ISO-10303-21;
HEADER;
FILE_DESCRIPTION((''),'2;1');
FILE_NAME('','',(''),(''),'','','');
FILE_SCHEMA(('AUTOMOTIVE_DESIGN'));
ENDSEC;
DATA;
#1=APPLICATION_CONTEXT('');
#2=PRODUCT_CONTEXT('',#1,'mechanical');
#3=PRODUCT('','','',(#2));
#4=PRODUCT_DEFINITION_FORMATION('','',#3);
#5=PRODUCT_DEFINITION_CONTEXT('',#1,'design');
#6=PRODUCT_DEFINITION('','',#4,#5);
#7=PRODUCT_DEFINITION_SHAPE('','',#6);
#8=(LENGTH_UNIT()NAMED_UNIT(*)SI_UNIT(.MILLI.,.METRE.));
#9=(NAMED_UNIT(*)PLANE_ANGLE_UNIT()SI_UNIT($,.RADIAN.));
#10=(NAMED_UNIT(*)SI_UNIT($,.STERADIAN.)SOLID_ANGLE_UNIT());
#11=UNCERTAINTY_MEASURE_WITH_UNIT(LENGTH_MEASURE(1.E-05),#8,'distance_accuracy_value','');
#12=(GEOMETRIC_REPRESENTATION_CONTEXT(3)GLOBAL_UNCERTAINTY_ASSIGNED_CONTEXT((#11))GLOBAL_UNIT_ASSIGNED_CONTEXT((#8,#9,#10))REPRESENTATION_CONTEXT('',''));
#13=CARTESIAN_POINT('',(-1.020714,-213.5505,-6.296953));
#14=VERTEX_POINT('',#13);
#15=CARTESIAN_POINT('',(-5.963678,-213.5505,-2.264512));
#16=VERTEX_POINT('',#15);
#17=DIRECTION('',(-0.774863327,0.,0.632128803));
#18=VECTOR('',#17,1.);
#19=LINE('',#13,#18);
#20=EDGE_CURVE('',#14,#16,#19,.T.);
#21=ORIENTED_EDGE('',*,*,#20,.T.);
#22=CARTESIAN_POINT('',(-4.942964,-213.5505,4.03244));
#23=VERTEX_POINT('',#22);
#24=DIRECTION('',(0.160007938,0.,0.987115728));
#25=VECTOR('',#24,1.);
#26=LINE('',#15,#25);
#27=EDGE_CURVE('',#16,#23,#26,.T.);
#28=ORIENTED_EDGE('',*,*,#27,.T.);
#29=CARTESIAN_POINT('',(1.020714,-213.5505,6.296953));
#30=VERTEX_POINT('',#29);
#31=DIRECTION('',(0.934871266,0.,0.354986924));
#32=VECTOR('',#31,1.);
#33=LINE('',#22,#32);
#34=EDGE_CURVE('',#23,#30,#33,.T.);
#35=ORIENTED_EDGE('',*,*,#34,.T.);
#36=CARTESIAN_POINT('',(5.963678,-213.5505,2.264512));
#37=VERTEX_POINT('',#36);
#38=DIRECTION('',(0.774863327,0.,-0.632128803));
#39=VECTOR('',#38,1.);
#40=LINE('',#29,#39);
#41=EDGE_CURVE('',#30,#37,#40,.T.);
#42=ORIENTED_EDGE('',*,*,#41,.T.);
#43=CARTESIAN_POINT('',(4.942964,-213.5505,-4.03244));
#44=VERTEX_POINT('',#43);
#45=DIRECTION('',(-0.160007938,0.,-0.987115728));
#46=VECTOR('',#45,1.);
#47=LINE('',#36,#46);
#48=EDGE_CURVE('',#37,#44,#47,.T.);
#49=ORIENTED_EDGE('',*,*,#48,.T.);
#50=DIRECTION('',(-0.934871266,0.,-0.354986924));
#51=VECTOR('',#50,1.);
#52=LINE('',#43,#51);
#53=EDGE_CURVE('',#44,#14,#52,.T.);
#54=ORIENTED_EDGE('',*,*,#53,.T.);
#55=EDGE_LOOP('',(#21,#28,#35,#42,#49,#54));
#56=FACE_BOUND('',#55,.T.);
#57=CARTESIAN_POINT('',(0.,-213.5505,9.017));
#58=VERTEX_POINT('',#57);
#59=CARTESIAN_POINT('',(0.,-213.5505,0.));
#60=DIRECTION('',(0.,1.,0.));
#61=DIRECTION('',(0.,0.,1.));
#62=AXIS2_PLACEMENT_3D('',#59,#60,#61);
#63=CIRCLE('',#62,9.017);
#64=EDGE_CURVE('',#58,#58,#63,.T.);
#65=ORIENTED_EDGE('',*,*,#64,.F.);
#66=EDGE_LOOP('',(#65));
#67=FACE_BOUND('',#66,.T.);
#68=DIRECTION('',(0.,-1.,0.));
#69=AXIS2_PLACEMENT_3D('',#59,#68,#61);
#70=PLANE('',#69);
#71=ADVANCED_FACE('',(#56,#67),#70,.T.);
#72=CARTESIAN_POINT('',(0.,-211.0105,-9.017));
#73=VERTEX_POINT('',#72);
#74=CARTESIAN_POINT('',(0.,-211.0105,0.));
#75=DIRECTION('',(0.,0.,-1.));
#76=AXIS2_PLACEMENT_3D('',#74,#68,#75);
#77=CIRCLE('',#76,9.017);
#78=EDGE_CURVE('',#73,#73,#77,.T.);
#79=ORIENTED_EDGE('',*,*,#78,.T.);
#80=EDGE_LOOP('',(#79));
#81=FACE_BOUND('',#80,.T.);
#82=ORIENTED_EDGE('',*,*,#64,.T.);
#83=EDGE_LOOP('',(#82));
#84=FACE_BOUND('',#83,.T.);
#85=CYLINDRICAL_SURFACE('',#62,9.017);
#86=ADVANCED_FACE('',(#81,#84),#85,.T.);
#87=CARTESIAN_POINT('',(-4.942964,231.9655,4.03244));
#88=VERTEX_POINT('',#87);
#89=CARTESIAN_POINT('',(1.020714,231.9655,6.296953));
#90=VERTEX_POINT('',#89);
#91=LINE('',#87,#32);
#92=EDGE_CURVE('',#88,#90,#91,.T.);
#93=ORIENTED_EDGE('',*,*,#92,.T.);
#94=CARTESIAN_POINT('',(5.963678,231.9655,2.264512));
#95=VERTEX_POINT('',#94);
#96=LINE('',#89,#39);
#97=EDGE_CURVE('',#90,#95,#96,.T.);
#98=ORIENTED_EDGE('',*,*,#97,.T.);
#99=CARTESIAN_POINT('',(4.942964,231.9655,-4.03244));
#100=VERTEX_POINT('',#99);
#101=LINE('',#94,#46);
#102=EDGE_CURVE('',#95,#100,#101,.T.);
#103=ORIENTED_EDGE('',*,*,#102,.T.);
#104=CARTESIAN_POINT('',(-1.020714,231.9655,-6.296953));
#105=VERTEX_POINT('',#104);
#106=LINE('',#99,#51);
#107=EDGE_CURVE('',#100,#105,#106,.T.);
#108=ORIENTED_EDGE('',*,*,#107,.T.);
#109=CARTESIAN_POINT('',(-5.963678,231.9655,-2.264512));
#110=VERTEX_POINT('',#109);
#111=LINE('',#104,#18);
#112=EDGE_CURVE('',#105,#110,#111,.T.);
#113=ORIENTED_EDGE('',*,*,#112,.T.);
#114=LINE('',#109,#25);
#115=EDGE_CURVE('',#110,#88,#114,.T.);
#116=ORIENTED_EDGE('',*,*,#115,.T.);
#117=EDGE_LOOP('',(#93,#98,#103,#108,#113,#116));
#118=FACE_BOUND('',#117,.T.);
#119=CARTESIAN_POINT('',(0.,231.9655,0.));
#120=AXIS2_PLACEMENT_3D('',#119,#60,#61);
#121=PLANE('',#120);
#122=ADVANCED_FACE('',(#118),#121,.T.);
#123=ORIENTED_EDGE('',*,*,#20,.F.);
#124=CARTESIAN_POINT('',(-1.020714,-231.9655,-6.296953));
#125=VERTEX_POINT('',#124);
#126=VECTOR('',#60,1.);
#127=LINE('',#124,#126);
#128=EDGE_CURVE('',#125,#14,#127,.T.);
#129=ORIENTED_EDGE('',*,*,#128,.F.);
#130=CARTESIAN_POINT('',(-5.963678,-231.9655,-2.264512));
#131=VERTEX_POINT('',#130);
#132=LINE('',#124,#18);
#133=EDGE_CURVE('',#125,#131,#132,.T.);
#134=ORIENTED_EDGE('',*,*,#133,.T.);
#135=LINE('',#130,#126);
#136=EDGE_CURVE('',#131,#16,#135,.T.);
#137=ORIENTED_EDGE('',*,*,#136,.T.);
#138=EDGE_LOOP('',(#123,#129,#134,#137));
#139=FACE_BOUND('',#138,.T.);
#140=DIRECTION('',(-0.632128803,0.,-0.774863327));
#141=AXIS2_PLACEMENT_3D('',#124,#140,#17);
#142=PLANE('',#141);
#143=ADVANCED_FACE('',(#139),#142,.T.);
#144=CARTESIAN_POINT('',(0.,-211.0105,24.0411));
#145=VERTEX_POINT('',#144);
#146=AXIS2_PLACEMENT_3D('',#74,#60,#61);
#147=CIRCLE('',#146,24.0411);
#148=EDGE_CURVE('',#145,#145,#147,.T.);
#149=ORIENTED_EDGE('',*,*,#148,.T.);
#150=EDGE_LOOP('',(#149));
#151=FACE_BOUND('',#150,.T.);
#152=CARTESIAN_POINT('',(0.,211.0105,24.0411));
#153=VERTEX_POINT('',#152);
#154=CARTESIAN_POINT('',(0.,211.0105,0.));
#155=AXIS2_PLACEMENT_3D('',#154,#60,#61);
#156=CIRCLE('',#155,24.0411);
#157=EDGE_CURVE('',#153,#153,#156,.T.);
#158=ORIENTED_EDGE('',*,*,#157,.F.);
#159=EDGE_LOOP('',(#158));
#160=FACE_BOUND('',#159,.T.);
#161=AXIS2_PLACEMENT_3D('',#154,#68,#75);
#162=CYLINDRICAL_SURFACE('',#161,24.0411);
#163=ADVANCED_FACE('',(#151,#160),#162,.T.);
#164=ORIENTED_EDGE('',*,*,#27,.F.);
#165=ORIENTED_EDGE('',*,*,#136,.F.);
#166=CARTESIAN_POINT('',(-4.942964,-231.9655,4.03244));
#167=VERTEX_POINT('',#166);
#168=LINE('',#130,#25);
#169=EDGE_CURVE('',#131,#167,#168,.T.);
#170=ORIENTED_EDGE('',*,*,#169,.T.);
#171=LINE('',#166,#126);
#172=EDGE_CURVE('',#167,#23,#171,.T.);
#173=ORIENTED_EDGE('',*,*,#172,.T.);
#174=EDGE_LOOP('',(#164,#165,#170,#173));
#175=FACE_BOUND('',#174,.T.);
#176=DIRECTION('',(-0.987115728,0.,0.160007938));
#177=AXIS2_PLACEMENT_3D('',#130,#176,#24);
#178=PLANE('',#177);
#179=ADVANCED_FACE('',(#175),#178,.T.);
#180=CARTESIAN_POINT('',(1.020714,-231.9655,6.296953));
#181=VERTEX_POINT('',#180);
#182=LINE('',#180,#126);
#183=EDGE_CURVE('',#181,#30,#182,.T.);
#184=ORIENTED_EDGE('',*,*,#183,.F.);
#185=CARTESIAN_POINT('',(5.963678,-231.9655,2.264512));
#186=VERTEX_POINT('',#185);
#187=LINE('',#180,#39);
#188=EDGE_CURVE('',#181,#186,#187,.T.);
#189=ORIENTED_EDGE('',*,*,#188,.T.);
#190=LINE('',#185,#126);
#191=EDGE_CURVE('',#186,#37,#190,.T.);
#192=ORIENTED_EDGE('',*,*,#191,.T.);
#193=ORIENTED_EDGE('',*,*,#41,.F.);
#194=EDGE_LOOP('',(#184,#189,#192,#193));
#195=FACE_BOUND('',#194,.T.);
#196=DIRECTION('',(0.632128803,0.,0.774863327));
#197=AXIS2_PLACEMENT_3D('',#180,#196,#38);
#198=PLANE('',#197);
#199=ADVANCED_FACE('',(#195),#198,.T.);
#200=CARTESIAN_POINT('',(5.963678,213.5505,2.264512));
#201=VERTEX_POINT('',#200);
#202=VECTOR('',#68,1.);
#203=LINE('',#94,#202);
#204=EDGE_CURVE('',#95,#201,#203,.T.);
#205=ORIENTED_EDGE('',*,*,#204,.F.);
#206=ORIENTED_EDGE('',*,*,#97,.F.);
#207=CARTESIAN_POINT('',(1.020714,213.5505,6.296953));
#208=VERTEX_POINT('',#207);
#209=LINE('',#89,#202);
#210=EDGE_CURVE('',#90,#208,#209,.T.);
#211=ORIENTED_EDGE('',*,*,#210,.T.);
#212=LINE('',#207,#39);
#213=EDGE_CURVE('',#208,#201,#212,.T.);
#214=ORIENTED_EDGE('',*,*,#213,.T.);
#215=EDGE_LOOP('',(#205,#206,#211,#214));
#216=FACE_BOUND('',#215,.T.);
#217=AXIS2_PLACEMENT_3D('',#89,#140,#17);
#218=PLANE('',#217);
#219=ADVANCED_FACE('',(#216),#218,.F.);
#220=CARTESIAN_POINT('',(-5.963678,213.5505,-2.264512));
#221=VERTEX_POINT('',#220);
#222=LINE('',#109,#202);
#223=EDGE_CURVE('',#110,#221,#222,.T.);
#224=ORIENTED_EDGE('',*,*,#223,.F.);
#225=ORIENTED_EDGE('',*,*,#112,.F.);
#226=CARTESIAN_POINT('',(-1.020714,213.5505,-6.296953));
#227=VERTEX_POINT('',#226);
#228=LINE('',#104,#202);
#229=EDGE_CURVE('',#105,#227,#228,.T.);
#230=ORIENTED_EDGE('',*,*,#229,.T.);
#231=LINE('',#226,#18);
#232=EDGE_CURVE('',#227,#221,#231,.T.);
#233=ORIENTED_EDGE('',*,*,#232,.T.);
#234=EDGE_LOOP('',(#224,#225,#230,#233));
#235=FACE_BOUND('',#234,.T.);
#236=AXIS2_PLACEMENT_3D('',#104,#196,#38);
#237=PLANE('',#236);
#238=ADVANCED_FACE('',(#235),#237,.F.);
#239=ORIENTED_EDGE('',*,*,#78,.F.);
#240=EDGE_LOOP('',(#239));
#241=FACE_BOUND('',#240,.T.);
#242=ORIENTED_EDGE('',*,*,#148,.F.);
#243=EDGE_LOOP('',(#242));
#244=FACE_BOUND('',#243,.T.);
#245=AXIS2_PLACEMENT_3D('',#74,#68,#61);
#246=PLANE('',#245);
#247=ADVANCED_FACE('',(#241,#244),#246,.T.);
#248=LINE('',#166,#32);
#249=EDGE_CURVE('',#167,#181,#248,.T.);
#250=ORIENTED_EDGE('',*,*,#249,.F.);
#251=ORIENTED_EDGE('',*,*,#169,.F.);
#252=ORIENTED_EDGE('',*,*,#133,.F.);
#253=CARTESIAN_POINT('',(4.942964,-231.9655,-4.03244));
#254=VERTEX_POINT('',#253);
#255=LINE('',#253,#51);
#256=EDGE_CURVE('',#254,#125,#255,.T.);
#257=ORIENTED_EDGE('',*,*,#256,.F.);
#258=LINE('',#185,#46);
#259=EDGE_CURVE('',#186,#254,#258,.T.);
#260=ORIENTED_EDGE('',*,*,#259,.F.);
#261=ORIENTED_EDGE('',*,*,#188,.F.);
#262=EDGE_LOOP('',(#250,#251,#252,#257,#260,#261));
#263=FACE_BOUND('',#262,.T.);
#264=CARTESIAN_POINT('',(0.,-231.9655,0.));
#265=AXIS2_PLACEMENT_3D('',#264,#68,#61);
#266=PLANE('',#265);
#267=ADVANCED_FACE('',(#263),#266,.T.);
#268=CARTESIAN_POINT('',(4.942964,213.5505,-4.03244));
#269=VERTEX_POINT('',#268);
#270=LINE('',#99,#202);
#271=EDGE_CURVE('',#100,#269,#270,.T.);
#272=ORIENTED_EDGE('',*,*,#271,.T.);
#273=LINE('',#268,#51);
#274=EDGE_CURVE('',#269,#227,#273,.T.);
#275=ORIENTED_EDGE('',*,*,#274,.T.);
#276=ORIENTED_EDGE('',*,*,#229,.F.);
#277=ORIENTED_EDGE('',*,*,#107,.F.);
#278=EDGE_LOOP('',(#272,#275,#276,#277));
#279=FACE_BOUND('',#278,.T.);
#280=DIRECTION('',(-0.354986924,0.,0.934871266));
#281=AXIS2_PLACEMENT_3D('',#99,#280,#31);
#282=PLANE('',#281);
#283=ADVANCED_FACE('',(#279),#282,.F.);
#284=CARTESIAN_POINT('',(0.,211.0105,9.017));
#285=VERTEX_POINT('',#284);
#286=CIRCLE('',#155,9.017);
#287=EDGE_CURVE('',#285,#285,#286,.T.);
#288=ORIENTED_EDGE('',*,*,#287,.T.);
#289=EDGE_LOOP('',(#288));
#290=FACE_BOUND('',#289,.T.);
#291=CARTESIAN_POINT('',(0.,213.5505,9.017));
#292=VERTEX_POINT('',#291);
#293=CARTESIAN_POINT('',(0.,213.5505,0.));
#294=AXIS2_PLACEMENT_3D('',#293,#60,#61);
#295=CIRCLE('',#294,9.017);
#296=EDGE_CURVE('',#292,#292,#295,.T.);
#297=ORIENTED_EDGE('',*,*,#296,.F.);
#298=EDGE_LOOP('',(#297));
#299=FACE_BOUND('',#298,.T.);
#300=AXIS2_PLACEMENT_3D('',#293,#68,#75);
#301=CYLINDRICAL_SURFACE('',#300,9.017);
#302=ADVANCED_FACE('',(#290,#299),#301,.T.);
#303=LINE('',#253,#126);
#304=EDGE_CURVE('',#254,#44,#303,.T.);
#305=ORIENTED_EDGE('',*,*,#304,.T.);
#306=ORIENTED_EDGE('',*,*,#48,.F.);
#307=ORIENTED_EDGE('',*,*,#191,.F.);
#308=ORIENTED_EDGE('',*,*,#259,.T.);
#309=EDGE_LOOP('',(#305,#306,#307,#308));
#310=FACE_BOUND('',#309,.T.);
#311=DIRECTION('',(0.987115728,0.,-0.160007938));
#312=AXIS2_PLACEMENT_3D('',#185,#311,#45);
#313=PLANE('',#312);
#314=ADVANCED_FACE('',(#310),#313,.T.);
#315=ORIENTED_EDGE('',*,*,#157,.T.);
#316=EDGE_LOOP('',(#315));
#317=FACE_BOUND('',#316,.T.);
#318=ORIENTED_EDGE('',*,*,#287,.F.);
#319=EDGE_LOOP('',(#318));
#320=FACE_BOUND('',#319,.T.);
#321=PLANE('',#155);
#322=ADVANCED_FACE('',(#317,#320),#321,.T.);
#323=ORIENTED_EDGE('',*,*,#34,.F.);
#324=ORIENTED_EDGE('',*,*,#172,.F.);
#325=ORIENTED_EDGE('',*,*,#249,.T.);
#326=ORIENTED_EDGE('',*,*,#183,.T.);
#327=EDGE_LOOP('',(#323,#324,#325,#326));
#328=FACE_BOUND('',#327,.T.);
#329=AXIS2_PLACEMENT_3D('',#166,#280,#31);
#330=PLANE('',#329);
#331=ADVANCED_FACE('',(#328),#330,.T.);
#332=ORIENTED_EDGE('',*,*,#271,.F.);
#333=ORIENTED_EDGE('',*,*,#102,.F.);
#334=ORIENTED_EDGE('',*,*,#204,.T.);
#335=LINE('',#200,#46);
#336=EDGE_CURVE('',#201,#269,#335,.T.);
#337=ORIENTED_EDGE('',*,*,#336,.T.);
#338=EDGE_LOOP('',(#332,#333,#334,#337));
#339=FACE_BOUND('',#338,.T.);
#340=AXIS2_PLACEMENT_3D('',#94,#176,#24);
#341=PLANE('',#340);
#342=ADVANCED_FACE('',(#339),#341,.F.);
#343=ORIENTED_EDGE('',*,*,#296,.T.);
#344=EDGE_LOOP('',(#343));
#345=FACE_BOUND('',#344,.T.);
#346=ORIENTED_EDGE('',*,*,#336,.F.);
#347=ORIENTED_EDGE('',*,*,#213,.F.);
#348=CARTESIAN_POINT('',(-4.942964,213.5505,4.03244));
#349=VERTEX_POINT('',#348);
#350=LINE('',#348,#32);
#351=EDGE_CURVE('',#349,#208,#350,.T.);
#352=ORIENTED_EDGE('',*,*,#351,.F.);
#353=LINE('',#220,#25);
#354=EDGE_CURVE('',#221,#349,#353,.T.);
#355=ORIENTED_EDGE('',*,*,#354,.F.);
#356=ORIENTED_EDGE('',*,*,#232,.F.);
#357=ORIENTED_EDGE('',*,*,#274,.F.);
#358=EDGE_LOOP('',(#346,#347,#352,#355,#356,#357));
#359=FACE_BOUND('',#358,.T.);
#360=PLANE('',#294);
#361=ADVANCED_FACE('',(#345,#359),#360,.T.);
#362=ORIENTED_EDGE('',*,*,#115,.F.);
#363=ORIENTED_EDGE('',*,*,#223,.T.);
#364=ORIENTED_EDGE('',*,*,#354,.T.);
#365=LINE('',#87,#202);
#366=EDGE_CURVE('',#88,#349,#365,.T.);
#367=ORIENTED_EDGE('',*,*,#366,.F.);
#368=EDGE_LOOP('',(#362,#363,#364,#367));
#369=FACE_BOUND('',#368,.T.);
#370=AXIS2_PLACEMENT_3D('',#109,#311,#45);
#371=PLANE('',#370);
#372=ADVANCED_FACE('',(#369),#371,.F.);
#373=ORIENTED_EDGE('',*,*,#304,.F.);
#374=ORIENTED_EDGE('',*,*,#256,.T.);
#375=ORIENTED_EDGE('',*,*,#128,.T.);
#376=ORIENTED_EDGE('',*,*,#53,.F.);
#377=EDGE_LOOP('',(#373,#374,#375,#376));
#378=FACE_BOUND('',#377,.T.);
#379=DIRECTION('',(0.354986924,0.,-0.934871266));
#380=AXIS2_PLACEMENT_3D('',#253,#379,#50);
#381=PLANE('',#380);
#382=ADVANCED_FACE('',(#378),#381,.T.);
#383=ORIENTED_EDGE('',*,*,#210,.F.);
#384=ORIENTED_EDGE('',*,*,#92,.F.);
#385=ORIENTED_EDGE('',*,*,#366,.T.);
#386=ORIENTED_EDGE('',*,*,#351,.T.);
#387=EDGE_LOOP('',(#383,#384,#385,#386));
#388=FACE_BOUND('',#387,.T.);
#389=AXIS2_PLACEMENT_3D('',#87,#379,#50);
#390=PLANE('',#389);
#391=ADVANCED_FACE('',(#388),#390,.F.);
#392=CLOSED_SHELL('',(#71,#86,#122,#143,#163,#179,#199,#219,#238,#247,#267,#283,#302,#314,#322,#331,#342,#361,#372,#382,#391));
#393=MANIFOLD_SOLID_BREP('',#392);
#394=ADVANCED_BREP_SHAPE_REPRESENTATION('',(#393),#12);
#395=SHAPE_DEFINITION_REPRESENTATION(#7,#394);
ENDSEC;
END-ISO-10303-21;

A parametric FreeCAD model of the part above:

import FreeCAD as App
import Part
import Sketcher
Q = App.Units.Quantity


def add_polygon(sketch, points):
    """Adds a closed chain of lines whose ends are joined by coincident constraints."""
    first, n = sketch.GeometryCount, len(points)
    for a, b in zip(points, points[1:] + points[:1]):
        sketch.addGeometry(Part.LineSegment(App.Vector(*a, 0), App.Vector(*b, 0)), False)
    for i in range(n):
        sketch.addConstraint(Sketcher.Constraint("Coincident", first + i, 2, first + (i + 1) % n, 1))

doc = App.newDocument("Part")
body = doc.addObject("PartDesign::Body", "Body")

# Sketch on XZ plane
sketch1 = body.newObject("Sketcher::SketchObject", "Sketch")
sketch1.AttachmentSupport = (doc.getObject("XZ_Plane"), [""])
sketch1.MapMode = "FlatFace"
sketch1.addGeometry(Part.Circle(App.Vector(0, 0, 0), App.Vector(0, 0, 1), 24.0411), False)
sketch1.addConstraint(Sketcher.Constraint("Coincident", 0, 3, -1, 1))
sketch1.addConstraint(Sketcher.Constraint("Diameter", 0, Q("1.893 in")))
pad1 = body.newObject("PartDesign::Pad", "Pad")
pad1.Profile = sketch1
pad1.Length = Q("8.3075 in")
pad1.Reversed = True

# Sketch on XZ plane
sketch2 = body.newObject("Sketcher::SketchObject", "Sketch001")
sketch2.AttachmentSupport = (doc.getObject("XZ_Plane"), [""])
sketch2.MapMode = "FlatFace"
sketch2.AttachmentOffset = App.Placement(App.Vector(0, 0, -8.3075 * 25.4), App.Rotation())
sketch2.addGeometry(Part.Circle(App.Vector(0, 0, 0), App.Vector(0, 0, 1), 9.017), False)
sketch2.addConstraint(Sketcher.Constraint("Coincident", 0, 3, -1, 1))
sketch2.addConstraint(Sketcher.Constraint("Diameter", 0, Q("0.71 in")))
pad2 = body.newObject("PartDesign::Pad", "Pad001")
pad2.Profile = sketch2
pad2.Length = Q("0.1 in")
pad2.Reversed = True

# Sketch on XZ plane
sketch3 = body.newObject("Sketcher::SketchObject", "Sketch002")
sketch3.AttachmentSupport = (doc.getObject("XZ_Plane"), [""])
sketch3.MapMode = "FlatFace"
sketch3.AttachmentOffset = App.Placement(App.Vector(0, 0, -8.4075 * 25.4), App.Rotation())
add_polygon(sketch3, [(5.963678, 2.264512), (4.942964, -4.03244), (-1.020714, -6.296953), (-5.963678, -2.264512), (-4.942964, 4.03244), (1.020714, 6.296953)])  # lines 0-5
sketch3.addConstraint(Sketcher.Constraint("Symmetric", 0, 2, 3, 2, -1, 1))
sketch3.addConstraint(Sketcher.Constraint("Symmetric", 1, 2, 4, 2, -1, 1))
sketch3.addConstraint(Sketcher.Constraint("Symmetric", 2, 2, 5, 2, -1, 1))
sketch3.addConstraint(Sketcher.Constraint("Equal", 0, 1))
sketch3.addConstraint(Sketcher.Constraint("Equal", 1, 2))
sketch3.addConstraint(Sketcher.Constraint("DistanceY", 0, 2, -1, 1, Q("4.03244 mm")))
sketch3.addConstraint(Sketcher.Constraint("DistanceY", 1, 2, 2, 2, Q("4.03244 mm")))
sketch3.addConstraint(Sketcher.Constraint("DistanceX", 2, 2, 0, 2, Q("10.906642 mm")))
sketch3.addConstraint(Sketcher.Constraint("DistanceX", 3, 2, 1, 2, Q("3.922251 mm")))
pad3 = body.newObject("PartDesign::Pad", "Pad002")
pad3.Profile = sketch3
pad3.Length = Q("0.725 in")
pad3.Reversed = True
doc.recompute()

mirrored = body.newObject("PartDesign::Mirrored", "Mirrored")
mirrored.Originals = [pad1, pad2, pad3]
mirrored.MirrorPlane = (doc.getObject("XZ_Plane"), [""])
body.Tip = mirrored

doc.recompute()
